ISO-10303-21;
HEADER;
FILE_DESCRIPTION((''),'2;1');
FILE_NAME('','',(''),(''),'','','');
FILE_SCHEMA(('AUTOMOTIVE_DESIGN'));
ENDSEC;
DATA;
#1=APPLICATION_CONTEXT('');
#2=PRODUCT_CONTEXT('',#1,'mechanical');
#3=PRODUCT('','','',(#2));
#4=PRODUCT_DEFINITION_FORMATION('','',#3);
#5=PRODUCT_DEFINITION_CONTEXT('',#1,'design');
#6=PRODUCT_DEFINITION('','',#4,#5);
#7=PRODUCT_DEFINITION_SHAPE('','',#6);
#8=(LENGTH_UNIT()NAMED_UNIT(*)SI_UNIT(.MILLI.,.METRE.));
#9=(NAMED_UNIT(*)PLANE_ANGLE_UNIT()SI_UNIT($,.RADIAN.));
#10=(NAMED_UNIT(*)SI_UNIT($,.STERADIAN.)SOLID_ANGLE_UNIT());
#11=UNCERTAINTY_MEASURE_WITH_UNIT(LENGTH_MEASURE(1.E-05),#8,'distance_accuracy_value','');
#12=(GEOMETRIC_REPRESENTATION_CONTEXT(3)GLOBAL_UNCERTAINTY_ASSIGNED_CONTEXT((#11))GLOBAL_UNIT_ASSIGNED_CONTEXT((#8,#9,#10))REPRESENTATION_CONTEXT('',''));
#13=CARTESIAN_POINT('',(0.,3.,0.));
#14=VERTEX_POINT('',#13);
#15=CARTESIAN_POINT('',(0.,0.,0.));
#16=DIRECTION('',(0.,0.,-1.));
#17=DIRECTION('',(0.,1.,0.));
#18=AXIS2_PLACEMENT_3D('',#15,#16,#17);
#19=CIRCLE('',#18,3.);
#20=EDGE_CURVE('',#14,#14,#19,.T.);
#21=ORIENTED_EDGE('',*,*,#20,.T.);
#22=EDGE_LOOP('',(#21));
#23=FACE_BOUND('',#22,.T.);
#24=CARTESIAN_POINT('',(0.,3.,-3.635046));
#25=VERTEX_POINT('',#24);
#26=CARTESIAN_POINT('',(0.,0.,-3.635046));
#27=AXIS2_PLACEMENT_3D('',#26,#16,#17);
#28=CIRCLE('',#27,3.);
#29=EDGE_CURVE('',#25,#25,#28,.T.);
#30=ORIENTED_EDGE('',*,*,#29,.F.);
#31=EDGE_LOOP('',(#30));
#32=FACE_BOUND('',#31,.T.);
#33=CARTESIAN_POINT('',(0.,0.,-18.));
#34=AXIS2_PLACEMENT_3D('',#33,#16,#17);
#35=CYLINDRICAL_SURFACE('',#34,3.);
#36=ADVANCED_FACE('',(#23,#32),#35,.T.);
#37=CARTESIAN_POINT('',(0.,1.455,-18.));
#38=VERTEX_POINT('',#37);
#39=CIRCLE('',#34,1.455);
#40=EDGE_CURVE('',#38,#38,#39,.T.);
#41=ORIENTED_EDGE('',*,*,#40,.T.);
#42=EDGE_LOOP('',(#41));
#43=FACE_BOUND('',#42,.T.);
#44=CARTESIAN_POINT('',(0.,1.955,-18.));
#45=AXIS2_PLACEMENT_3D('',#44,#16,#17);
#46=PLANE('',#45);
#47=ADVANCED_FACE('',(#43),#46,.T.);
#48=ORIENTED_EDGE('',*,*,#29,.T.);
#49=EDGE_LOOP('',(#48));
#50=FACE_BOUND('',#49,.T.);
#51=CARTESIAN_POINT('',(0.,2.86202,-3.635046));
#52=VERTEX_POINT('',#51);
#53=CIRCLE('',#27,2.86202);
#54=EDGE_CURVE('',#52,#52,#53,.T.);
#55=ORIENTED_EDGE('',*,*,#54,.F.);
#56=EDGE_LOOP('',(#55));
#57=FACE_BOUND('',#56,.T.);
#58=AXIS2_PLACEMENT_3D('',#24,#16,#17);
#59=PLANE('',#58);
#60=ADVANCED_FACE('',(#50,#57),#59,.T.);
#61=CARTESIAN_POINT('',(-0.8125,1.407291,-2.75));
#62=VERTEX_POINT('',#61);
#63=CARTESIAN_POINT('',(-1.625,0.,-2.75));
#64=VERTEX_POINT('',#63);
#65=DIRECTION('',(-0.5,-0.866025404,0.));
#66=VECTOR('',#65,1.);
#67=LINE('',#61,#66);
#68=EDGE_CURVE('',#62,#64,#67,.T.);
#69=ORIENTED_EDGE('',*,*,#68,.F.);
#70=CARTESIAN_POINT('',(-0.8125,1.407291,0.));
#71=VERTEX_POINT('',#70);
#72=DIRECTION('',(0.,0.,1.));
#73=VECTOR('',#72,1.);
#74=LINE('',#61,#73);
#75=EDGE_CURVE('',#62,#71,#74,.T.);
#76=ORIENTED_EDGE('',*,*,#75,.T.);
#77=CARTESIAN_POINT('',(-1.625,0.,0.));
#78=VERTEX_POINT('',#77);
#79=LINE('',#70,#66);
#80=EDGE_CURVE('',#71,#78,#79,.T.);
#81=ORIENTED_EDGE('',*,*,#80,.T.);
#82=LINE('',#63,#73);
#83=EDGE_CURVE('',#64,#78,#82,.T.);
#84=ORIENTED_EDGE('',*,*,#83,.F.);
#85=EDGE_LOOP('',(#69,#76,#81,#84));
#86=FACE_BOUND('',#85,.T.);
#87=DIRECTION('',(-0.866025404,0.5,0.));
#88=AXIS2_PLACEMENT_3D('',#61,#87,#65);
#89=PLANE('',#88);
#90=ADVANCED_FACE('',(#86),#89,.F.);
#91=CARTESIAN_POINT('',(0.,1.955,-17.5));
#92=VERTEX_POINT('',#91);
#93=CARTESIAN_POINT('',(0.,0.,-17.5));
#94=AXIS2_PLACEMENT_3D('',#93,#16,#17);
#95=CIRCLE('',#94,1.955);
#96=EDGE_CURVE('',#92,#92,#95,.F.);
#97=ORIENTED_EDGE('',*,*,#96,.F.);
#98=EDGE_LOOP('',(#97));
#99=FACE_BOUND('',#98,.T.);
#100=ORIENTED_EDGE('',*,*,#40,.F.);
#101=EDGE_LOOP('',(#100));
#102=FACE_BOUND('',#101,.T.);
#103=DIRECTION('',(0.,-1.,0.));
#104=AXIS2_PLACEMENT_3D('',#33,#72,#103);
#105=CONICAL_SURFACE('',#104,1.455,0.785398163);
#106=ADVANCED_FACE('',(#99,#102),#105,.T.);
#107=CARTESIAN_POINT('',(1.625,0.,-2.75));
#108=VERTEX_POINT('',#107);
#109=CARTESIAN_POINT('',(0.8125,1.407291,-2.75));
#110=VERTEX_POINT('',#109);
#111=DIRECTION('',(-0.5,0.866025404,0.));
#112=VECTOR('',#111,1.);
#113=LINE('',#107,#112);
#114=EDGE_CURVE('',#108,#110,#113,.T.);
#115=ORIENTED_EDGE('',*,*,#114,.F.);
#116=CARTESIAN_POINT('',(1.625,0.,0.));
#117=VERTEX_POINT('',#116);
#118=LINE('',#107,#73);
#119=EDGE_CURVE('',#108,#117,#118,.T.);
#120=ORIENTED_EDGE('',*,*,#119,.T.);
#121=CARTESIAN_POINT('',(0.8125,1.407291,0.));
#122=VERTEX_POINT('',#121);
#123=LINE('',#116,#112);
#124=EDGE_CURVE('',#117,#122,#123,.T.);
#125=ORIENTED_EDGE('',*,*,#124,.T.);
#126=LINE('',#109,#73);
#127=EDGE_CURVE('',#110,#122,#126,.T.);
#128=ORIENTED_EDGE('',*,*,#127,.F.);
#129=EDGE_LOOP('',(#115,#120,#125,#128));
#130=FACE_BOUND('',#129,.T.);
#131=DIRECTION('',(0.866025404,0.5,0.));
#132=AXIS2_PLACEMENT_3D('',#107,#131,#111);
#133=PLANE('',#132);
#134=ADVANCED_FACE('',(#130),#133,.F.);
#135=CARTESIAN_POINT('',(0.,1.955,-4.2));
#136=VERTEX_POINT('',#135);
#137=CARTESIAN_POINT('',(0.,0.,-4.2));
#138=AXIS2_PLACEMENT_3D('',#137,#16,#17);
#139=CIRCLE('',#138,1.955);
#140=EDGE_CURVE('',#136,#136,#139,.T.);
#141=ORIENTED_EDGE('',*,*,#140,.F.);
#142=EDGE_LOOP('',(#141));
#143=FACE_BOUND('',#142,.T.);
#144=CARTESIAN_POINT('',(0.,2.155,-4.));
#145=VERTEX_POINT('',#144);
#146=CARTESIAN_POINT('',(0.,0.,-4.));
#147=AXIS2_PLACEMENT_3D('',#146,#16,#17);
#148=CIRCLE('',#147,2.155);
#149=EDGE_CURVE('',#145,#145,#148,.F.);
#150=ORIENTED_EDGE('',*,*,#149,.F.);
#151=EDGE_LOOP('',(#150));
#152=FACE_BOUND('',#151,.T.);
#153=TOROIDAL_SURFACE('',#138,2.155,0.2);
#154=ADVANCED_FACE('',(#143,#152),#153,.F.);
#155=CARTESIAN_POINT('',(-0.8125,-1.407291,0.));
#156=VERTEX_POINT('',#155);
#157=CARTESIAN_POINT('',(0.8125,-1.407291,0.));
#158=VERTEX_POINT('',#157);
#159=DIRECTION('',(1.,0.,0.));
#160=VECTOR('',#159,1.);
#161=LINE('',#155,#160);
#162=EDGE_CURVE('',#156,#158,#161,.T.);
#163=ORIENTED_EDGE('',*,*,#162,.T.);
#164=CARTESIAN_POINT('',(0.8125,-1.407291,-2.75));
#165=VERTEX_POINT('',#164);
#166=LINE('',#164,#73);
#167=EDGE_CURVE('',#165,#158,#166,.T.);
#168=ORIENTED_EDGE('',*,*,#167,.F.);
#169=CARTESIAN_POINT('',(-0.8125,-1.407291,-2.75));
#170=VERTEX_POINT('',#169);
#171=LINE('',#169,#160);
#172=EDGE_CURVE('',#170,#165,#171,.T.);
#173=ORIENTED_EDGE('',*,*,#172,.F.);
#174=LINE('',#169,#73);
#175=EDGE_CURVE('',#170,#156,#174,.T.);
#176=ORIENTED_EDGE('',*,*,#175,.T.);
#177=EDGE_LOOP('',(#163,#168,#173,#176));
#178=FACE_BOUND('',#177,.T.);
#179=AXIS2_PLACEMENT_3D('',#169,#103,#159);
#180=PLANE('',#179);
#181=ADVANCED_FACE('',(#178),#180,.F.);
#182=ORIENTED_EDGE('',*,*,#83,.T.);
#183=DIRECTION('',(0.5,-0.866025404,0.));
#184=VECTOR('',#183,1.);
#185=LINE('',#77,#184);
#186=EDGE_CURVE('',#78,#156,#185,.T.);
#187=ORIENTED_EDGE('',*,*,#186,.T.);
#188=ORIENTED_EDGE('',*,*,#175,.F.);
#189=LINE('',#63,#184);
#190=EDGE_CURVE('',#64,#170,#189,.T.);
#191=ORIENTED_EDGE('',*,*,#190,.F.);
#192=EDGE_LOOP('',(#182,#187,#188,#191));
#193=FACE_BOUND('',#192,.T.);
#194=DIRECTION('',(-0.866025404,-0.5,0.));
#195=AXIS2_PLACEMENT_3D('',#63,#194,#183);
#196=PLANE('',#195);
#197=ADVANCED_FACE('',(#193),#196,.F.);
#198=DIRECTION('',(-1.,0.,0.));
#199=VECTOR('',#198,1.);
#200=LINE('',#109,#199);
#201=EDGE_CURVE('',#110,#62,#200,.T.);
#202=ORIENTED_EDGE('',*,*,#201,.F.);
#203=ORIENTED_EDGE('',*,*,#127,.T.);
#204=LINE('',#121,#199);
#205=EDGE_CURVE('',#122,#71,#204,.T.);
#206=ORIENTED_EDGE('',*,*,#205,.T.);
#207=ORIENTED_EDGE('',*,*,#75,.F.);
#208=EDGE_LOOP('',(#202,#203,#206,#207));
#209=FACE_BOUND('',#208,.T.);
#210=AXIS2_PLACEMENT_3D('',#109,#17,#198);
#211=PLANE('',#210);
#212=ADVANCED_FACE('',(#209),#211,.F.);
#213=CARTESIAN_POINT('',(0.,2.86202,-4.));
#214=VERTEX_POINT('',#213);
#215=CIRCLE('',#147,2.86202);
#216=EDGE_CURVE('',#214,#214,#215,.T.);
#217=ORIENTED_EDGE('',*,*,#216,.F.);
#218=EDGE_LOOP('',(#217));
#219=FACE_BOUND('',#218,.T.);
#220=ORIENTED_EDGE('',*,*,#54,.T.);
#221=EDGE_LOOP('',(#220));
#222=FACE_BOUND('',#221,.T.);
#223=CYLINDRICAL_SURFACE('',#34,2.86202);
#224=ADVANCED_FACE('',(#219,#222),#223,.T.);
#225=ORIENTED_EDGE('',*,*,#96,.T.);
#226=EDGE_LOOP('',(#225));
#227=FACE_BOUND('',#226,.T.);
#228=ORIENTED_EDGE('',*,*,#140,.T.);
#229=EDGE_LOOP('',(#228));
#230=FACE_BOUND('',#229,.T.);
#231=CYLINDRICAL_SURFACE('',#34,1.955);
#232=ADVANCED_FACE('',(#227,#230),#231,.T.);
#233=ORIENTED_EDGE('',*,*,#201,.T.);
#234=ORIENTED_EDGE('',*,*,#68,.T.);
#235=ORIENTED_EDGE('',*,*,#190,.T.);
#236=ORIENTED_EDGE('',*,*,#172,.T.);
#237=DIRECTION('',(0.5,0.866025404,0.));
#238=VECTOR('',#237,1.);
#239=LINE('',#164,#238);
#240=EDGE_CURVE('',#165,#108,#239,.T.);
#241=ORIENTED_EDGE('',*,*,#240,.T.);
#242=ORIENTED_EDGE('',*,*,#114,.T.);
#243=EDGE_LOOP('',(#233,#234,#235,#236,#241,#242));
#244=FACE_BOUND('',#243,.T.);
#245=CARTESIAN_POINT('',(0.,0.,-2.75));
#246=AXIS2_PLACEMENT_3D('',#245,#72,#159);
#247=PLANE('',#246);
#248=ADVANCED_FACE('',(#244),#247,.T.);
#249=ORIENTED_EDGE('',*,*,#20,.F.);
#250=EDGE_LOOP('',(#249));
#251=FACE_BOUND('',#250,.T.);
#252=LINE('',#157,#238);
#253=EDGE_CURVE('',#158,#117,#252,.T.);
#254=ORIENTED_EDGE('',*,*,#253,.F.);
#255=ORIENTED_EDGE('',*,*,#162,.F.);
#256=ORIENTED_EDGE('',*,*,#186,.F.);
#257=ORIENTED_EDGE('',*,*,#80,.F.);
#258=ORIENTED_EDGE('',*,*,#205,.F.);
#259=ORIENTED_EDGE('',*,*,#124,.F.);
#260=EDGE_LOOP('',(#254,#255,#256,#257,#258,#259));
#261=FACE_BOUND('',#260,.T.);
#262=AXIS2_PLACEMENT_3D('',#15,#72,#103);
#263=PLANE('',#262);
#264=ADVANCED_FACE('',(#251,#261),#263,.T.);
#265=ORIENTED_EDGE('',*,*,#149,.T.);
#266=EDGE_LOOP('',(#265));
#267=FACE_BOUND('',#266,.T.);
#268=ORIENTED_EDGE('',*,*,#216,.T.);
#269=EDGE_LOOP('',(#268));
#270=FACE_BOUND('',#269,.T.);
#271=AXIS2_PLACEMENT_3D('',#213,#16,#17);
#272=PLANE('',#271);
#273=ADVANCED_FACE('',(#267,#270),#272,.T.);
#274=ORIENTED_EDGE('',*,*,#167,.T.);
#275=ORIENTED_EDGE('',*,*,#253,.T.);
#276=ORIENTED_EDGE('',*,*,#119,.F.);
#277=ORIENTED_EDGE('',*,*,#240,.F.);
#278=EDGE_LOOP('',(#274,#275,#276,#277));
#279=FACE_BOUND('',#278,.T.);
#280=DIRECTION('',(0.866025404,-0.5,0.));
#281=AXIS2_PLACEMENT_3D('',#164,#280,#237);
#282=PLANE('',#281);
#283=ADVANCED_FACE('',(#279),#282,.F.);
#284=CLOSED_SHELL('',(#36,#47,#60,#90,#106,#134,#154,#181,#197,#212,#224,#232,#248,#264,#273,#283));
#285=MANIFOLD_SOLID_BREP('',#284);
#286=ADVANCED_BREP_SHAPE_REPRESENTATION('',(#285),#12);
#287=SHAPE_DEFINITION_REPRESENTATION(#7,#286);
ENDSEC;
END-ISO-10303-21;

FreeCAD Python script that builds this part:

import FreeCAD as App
import Part
import Sketcher
from FreeCAD import Vector
Q = App.Units.Quantity


def edges_at(feature, points):
    """Names of the edges that pass closest to the given points."""
    edges = feature.Shape.Edges
    near = lambda p: min(range(len(edges)), key=lambda i: edges[i].distToShape(Part.Vertex(*p))[0])
    return sorted({f"Edge{near(p) + 1}" for p in points})

doc = App.newDocument("Part")
body = doc.addObject("PartDesign::Body", "Body")

# Sketch on YZ plane
sketch1 = body.newObject("Sketcher::SketchObject", "Sketch")
sketch1.AttachmentSupport = (doc.getObject("YZ_Plane"), [""])
sketch1.MapMode = "FlatFace"
sketch1.addGeometry([
    Part.LineSegment(Vector(3, -3.64, 0), Vector(3, 0, 0)),  # 0
    Part.LineSegment(Vector(3, 0, 0), Vector(0, 0, 0)),  # 1
    Part.LineSegment(Vector(0, 0, 0), Vector(0, -18, 0)),  # 2
    Part.LineSegment(Vector(0, -18, 0), Vector(1.96, -18, 0)),  # 3
    Part.LineSegment(Vector(1.96, -18, 0), Vector(1.96, -4, 0)),  # 4
    Part.LineSegment(Vector(1.96, -4, 0), Vector(2.86, -4, 0)),  # 5
    Part.LineSegment(Vector(2.86, -4, 0), Vector(2.86, -3.64, 0)),  # 6
    Part.LineSegment(Vector(2.86, -3.64, 0), Vector(3, -3.64, 0)),  # 7
], False)
sketch1.addConstraint([
    Sketcher.Constraint("Coincident", 0, 2, 1, 1),
    Sketcher.Constraint("Coincident", 1, 2, 2, 1),
    Sketcher.Constraint("Coincident", 2, 2, 3, 1),
    Sketcher.Constraint("Coincident", 3, 2, 4, 1),
    Sketcher.Constraint("Coincident", 4, 2, 5, 1),
    Sketcher.Constraint("Coincident", 5, 2, 6, 1),
    Sketcher.Constraint("Coincident", 6, 2, 7, 1),
    Sketcher.Constraint("Coincident", 7, 2, 0, 1),
    Sketcher.Constraint("Vertical", 0),
    Sketcher.Constraint("Horizontal", 1),
    Sketcher.Constraint("Vertical", 2),
    Sketcher.Constraint("Horizontal", 3),
    Sketcher.Constraint("Vertical", 4),
    Sketcher.Constraint("Horizontal", 5),
    Sketcher.Constraint("Vertical", 6),
    Sketcher.Constraint("Horizontal", 7),
    Sketcher.Constraint("Coincident", 1, 2, -1, 1),
    Sketcher.Constraint("DistanceX", 1, 2, 1, 1, Q("3 mm")),
    Sketcher.Constraint("DistanceY", 2, 2, 2, 1, Q("18 mm")),
    Sketcher.Constraint("DistanceY", 4, 1, 4, 2, Q("14 mm")),
    Sketcher.Constraint("DistanceX", 3, 1, 3, 2, Q("1.955 mm")),
    Sketcher.Constraint("DistanceX", 5, 1, 5, 2, Q("0.90702 mm")),
    Sketcher.Constraint("DistanceY", 0, 1, 0, 2, Q("3.635046 mm")),
])
revolution = body.newObject("PartDesign::Revolution", "Revolution")
revolution.Profile = sketch1
revolution.ReferenceAxis = (sketch1, ["V_Axis"])
revolution.Angle = 360
doc.recompute()

fillet = body.newObject("PartDesign::Fillet", "Fillet")
fillet.Base = (revolution, edges_at(revolution, [(0, -1.955, -4)]))
fillet.Radius = 0.2
doc.recompute()

chamfer = body.newObject("PartDesign::Chamfer", "Chamfer")
chamfer.Base = (fillet, edges_at(fillet, [(0, -1.955, -18)]))
chamfer.Size = 0.5

# Sketch on XY plane
sketch2 = body.newObject("Sketcher::SketchObject", "Sketch001")
sketch2.AttachmentSupport = (doc.getObject("XY_Plane"), [""])
sketch2.MapMode = "FlatFace"
sketch2.addGeometry([
    Part.LineSegment(Vector(-1.6, 0, 0), Vector(-0.8, -1.4, 0)),  # 0
    Part.LineSegment(Vector(-0.8, -1.4, 0), Vector(0.8, -1.4, 0)),  # 1
    Part.LineSegment(Vector(0.8, -1.4, 0), Vector(1.6, 0, 0)),  # 2
    Part.LineSegment(Vector(1.6, 0, 0), Vector(0.8, 1.4, 0)),  # 3
    Part.LineSegment(Vector(0.8, 1.4, 0), Vector(-0.8, 1.4, 0)),  # 4
    Part.LineSegment(Vector(-0.8, 1.4, 0), Vector(-1.6, 0, 0)),  # 5
], False)
sketch2.addConstraint([
    Sketcher.Constraint("Coincident", 0, 2, 1, 1),
    Sketcher.Constraint("Coincident", 1, 2, 2, 1),
    Sketcher.Constraint("Coincident", 2, 2, 3, 1),
    Sketcher.Constraint("Coincident", 3, 2, 4, 1),
    Sketcher.Constraint("Coincident", 4, 2, 5, 1),
    Sketcher.Constraint("Coincident", 5, 2, 0, 1),
    Sketcher.Constraint("Horizontal", 1),
    Sketcher.Constraint("Horizontal", 4),
    Sketcher.Constraint("Symmetric", 0, 2, 3, 2, -1, 1),
    Sketcher.Constraint("Symmetric", 2, 2, 5, 2, -1, 1),
    Sketcher.Constraint("PointOnObject", 2, 2, -1),
    Sketcher.Constraint("Parallel", 2, 5),
    Sketcher.Constraint("Vertical", 1, 2, 3, 2),
    Sketcher.Constraint("Angle", 0, Q("-60 deg")),
    Sketcher.Constraint("DistanceX", 1, 1, 1, 2, Q("1.625 mm")),
    Sketcher.Constraint("DistanceX", 5, 2, 2, 2, Q("3.25 mm")),
])
pocket1 = body.newObject("PartDesign::Pocket", "Pocket")
pocket1.Profile = sketch2
pocket1.Length = 2.75

doc.recompute()
